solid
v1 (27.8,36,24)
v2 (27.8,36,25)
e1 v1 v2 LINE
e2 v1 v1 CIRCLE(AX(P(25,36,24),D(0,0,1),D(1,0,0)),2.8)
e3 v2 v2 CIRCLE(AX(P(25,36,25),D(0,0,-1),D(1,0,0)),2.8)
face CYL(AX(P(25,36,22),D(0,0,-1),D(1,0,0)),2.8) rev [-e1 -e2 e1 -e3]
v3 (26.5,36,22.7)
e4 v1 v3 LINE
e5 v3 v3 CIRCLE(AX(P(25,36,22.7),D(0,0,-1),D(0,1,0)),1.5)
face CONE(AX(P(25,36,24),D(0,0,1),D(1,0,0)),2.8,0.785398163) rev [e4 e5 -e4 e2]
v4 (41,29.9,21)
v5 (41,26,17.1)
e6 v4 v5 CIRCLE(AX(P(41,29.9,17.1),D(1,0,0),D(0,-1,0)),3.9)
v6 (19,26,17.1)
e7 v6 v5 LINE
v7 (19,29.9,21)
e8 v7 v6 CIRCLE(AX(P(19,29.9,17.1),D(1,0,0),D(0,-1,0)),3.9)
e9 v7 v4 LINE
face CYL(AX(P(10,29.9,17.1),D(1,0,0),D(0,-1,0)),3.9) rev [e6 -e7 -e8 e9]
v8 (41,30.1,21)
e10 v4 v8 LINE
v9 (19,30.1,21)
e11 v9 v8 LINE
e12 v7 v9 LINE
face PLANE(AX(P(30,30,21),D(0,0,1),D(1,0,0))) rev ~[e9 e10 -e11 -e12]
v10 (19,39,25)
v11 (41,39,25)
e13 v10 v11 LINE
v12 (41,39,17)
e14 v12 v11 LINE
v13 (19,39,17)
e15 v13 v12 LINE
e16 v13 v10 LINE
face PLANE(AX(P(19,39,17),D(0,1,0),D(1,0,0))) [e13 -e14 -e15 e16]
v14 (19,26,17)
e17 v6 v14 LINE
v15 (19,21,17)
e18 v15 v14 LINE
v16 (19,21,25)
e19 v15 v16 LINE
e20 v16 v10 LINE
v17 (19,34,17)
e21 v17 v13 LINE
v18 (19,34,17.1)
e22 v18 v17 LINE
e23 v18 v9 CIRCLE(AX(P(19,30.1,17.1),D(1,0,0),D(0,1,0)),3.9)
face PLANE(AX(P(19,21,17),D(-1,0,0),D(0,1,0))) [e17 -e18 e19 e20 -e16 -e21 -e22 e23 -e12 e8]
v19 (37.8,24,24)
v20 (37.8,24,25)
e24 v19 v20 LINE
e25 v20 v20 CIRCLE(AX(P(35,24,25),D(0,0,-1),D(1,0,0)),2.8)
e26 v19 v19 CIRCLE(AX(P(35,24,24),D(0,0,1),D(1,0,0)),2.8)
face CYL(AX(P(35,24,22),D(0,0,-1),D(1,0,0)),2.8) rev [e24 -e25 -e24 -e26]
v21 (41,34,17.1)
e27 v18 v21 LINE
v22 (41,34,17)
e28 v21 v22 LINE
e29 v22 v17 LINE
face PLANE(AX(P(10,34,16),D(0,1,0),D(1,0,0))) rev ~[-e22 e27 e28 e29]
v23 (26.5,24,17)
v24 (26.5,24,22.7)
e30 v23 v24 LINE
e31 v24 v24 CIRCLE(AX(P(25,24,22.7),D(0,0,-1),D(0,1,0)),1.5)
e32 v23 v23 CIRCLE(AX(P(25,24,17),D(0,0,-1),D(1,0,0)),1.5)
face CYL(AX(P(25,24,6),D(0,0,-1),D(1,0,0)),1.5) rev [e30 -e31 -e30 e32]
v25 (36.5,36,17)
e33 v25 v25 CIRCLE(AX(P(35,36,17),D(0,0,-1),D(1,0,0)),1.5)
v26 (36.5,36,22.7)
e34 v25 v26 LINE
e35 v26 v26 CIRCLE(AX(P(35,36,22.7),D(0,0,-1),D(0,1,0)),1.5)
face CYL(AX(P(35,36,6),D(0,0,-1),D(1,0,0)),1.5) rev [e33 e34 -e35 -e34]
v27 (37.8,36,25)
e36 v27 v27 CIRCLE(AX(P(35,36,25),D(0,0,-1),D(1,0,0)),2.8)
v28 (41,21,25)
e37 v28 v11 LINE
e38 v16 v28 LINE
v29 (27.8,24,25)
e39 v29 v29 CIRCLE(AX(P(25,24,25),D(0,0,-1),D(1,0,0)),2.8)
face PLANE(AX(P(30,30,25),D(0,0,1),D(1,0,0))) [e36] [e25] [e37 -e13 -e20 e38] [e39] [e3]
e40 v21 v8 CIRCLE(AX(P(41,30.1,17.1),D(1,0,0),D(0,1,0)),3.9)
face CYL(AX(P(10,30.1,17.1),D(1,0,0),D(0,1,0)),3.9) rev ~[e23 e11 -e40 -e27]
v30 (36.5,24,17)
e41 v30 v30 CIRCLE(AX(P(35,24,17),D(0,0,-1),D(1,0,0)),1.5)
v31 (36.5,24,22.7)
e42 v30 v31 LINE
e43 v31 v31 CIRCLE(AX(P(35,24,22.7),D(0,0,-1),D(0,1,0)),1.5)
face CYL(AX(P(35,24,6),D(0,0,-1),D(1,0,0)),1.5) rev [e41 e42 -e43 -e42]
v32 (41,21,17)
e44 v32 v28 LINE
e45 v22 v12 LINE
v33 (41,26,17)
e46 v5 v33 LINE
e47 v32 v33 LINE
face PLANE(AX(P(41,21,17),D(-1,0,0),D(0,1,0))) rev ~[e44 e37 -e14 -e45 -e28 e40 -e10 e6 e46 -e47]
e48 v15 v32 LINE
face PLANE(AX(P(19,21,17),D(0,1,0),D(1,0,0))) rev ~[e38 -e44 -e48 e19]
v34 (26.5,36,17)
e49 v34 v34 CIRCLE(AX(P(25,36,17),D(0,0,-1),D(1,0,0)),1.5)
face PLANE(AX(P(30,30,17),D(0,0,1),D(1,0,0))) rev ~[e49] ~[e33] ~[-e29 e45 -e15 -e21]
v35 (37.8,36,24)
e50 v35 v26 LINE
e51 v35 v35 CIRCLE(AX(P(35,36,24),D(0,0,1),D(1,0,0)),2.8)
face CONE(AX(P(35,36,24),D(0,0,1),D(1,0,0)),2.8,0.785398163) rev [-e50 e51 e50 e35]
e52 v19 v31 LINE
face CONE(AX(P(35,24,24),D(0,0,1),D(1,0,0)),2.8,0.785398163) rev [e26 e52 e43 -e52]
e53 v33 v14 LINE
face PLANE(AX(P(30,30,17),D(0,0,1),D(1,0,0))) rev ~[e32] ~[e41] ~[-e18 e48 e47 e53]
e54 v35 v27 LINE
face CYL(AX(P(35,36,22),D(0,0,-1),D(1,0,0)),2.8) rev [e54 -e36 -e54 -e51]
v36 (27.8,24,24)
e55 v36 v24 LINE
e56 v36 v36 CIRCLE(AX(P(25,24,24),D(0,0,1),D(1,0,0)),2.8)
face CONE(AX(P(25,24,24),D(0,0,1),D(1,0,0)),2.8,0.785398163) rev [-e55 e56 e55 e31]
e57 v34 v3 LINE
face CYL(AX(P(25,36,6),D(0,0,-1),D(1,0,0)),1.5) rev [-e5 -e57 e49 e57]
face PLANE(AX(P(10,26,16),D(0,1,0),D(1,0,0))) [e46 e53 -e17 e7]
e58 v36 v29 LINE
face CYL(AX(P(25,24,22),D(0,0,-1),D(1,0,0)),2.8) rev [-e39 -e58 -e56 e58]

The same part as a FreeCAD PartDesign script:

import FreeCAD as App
import Part
import Sketcher

V = App.Vector
Q = App.Units.Quantity


def edges_at(feature, points):
    """Names of the edges that pass closest to the given points."""
    edges = feature.Shape.Edges
    near = lambda p: min(range(len(edges)), key=lambda i: edges[i].distToShape(Part.Vertex(*p))[0])
    return sorted({f"Edge{near(p) + 1}" for p in points})

doc = App.newDocument("Part")
params = doc.addObject("Spreadsheet::Sheet", "Params")
for row, (alias, value) in enumerate([
    ("sketch1_diameter", "3 mm"),
    ("pad1_length", "25 mm"),
    ("sketch2_diameter", "5.6 mm"),
    ("pad2_length", "5 mm"),
    ("chamfer_size", "2 mm"),
    ("sketch3_diameter", "3 mm"),
    ("pad3_length", "25 mm"),
    ("sketch4_diameter", "3 mm"),
    ("pad4_length", "25 mm"),
    ("sketch5_diameter", "5.6 mm"),
    ("pad5_length", "5 mm"),
    ("chamfer2_size", "2 mm"),
    ("sketch6_diameter", "3 mm"),
    ("pad6_length", "25 mm"),
    ("sketch7_diameter", "5.6 mm"),
    ("pad7_length", "5 mm"),
    ("chamfer3_size", "2 mm"),
    ("sketch8_width", "40 mm"),
    ("sketch8_height", "8 mm"),
    ("pad8_length", "5 mm"),
    ("fillet_radius", "3.9 mm"),
    ("sketch9_diameter", "5.6 mm"),
    ("pad9_length", "5 mm"),
    ("chamfer4_size", "2 mm"),
    ("sketch10_width", "22 mm"),
    ("sketch10_height", "18 mm"),
    ("pad10_length", "8 mm"),
], start=1):
    params.set(f"A{row}", alias)
    params.set(f"B{row}", "=" + value)
    params.setAlias(f"B{row}", alias)

body = doc.addObject("PartDesign::Body", "Body")

# Sketch on XY plane
sketch1 = body.newObject("Sketcher::SketchObject", "Sketch")
sketch1.AttachmentSupport = (doc.getObject("XY_Plane"), [""])
sketch1.MapMode = "FlatFace"
sketch1.AttachmentOffset = App.Placement(V(0, 0, 2), App.Rotation())
sketch1.addGeometry(Part.Circle(V(25, 24, 0), V(0, 0, 1), 1.5), False)
sketch1.addConstraint(Sketcher.Constraint("Diameter", 0, Q("3 mm")))
sketch1.addConstraint(Sketcher.Constraint("DistanceX", -1, 1, 0, 3, Q("25 mm")))
sketch1.addConstraint(Sketcher.Constraint("DistanceY", -1, 1, 0, 3, Q("24 mm")))
sketch1.setExpression("Constraints[0]", "Params.sketch1_diameter")
pad1 = body.newObject("PartDesign::Pad", "Pad")
pad1.Profile = sketch1
pad1.setExpression("Length", "Params.pad1_length")
body2 = doc.addObject("PartDesign::Body", "Body001")

# Sketch on XY plane
sketch2 = body2.newObject("Sketcher::SketchObject", "Sketch001")
sketch2.AttachmentSupport = (doc.getObject("XY_Plane001"), [""])
sketch2.MapMode = "FlatFace"
sketch2.AttachmentOffset = App.Placement(V(0, 0, 18), App.Rotation())
sketch2.addGeometry(Part.Circle(V(25, 36, 0), V(0, 0, 1), 2.8), False)
sketch2.addConstraint(Sketcher.Constraint("Diameter", 0, Q("5.6 mm")))
sketch2.addConstraint(Sketcher.Constraint("DistanceX", -1, 1, 0, 3, Q("25 mm")))
sketch2.addConstraint(Sketcher.Constraint("DistanceY", -1, 1, 0, 3, Q("36 mm")))
sketch2.setExpression("Constraints[0]", "Params.sketch2_diameter")
pad2 = body2.newObject("PartDesign::Pad", "Pad001")
pad2.Profile = sketch2
pad2.setExpression("Length", "Params.pad2_length")
doc.recompute()

chamfer = body2.newObject("PartDesign::Chamfer", "Chamfer")
chamfer.Base = (pad2, edges_at(pad2, [(22.2, 36, 18)]))
chamfer.setExpression("Size", "Params.chamfer_size")
body3 = doc.addObject("PartDesign::Body", "Body002")

# Sketch on XY plane
sketch3 = body3.newObject("Sketcher::SketchObject", "Sketch002")
sketch3.AttachmentSupport = (doc.getObject("XY_Plane002"), [""])
sketch3.MapMode = "FlatFace"
sketch3.AttachmentOffset = App.Placement(V(0, 0, 2), App.Rotation())
sketch3.addGeometry(Part.Circle(V(25, 36, 0), V(0, 0, 1), 1.5), False)
sketch3.addConstraint(Sketcher.Constraint("Diameter", 0, Q("3 mm")))
sketch3.addConstraint(Sketcher.Constraint("DistanceX", -1, 1, 0, 3, Q("25 mm")))
sketch3.addConstraint(Sketcher.Constraint("DistanceY", -1, 1, 0, 3, Q("36 mm")))
sketch3.setExpression("Constraints[0]", "Params.sketch3_diameter")
pad3 = body3.newObject("PartDesign::Pad", "Pad002")
pad3.Profile = sketch3
pad3.setExpression("Length", "Params.pad3_length")
body4 = doc.addObject("PartDesign::Body", "Body003")

# Sketch on XY plane
sketch4 = body4.newObject("Sketcher::SketchObject", "Sketch003")
sketch4.AttachmentSupport = (doc.getObject("XY_Plane003"), [""])
sketch4.MapMode = "FlatFace"
sketch4.AttachmentOffset = App.Placement(V(0, 0, 2), App.Rotation())
sketch4.addGeometry(Part.Circle(V(35, 36, 0), V(0, 0, 1), 1.5), False)
sketch4.addConstraint(Sketcher.Constraint("Diameter", 0, Q("3 mm")))
sketch4.addConstraint(Sketcher.Constraint("DistanceX", -1, 1, 0, 3, Q("35 mm")))
sketch4.addConstraint(Sketcher.Constraint("DistanceY", -1, 1, 0, 3, Q("36 mm")))
sketch4.setExpression("Constraints[0]", "Params.sketch4_diameter")
pad4 = body4.newObject("PartDesign::Pad", "Pad003")
pad4.Profile = sketch4
pad4.setExpression("Length", "Params.pad4_length")
body5 = doc.addObject("PartDesign::Body", "Body004")

# Sketch on XY plane
sketch5 = body5.newObject("Sketcher::SketchObject", "Sketch004")
sketch5.AttachmentSupport = (doc.getObject("XY_Plane004"), [""])
sketch5.MapMode = "FlatFace"
sketch5.AttachmentOffset = App.Placement(V(0, 0, 18), App.Rotation())
sketch5.addGeometry(Part.Circle(V(35, 36, 0), V(0, 0, 1), 2.8), False)
sketch5.addConstraint(Sketcher.Constraint("Diameter", 0, Q("5.6 mm")))
sketch5.addConstraint(Sketcher.Constraint("DistanceX", -1, 1, 0, 3, Q("35 mm")))
sketch5.addConstraint(Sketcher.Constraint("DistanceY", -1, 1, 0, 3, Q("36 mm")))
sketch5.setExpression("Constraints[0]", "Params.sketch5_diameter")
pad5 = body5.newObject("PartDesign::Pad", "Pad004")
pad5.Profile = sketch5
pad5.setExpression("Length", "Params.pad5_length")
doc.recompute()

chamfer2 = body5.newObject("PartDesign::Chamfer", "Chamfer001")
chamfer2.Base = (pad5, edges_at(pad5, [(32.2, 36, 18)]))
chamfer2.setExpression("Size", "Params.chamfer2_size")
body6 = doc.addObject("PartDesign::Body", "Body005")

# Sketch on XY plane
sketch6 = body6.newObject("Sketcher::SketchObject", "Sketch005")
sketch6.AttachmentSupport = (doc.getObject("XY_Plane005"), [""])
sketch6.MapMode = "FlatFace"
sketch6.AttachmentOffset = App.Placement(V(0, 0, 2), App.Rotation())
sketch6.addGeometry(Part.Circle(V(35, 24, 0), V(0, 0, 1), 1.5), False)
sketch6.addConstraint(Sketcher.Constraint("Diameter", 0, Q("3 mm")))
sketch6.addConstraint(Sketcher.Constraint("DistanceX", -1, 1, 0, 3, Q("35 mm")))
sketch6.addConstraint(Sketcher.Constraint("DistanceY", -1, 1, 0, 3, Q("24 mm")))
sketch6.setExpression("Constraints[0]", "Params.sketch6_diameter")
pad6 = body6.newObject("PartDesign::Pad", "Pad005")
pad6.Profile = sketch6
pad6.setExpression("Length", "Params.pad6_length")
body7 = doc.addObject("PartDesign::Body", "Body006")

# Sketch on XY plane
sketch7 = body7.newObject("Sketcher::SketchObject", "Sketch006")
sketch7.AttachmentSupport = (doc.getObject("XY_Plane006"), [""])
sketch7.MapMode = "FlatFace"
sketch7.AttachmentOffset = App.Placement(V(0, 0, 18), App.Rotation())
sketch7.addGeometry(Part.Circle(V(35, 24, 0), V(0, 0, 1), 2.8), False)
sketch7.addConstraint(Sketcher.Constraint("Diameter", 0, Q("5.6 mm")))
sketch7.addConstraint(Sketcher.Constraint("DistanceX", -1, 1, 0, 3, Q("35 mm")))
sketch7.addConstraint(Sketcher.Constraint("DistanceY", -1, 1, 0, 3, Q("24 mm")))
sketch7.setExpression("Constraints[0]", "Params.sketch7_diameter")
pad7 = body7.newObject("PartDesign::Pad", "Pad006")
pad7.Profile = sketch7
pad7.setExpression("Length", "Params.pad7_length")
doc.recompute()

chamfer3 = body7.newObject("PartDesign::Chamfer", "Chamfer002")
chamfer3.Base = (pad7, edges_at(pad7, [(32.2, 24, 18)]))
chamfer3.setExpression("Size", "Params.chamfer3_size")
body8 = doc.addObject("PartDesign::Body", "Body007")

# Sketch on XY plane
sketch8 = body8.newObject("Sketcher::SketchObject", "Sketch007")
sketch8.AttachmentSupport = (doc.getObject("XY_Plane007"), [""])
sketch8.MapMode = "FlatFace"
sketch8.AttachmentOffset = App.Placement(V(0, 0, 12), App.Rotation())
sketch8.addGeometry(Part.LineSegment(V(10, 34, 0), V(10, 26, 0)), False)
sketch8.addGeometry(Part.LineSegment(V(10, 26, 0), V(50, 26, 0)), False)
sketch8.addGeometry(Part.LineSegment(V(50, 26, 0), V(50, 34, 0)), False)
sketch8.addGeometry(Part.LineSegment(V(50, 34, 0), V(10, 34, 0)), False)
sketch8.addConstraint(Sketcher.Constraint("Coincident", 0, 2, 1, 1))
sketch8.addConstraint(Sketcher.Constraint("Coincident", 1, 2, 2, 1))
sketch8.addConstraint(Sketcher.Constraint("Coincident", 2, 2, 3, 1))
sketch8.addConstraint(Sketcher.Constraint("Coincident", 3, 2, 0, 1))
sketch8.addConstraint(Sketcher.Constraint("Vertical", 0))
sketch8.addConstraint(Sketcher.Constraint("Horizontal", 1))
sketch8.addConstraint(Sketcher.Constraint("Vertical", 2))
sketch8.addConstraint(Sketcher.Constraint("Horizontal", 3))
sketch8.addConstraint(Sketcher.Constraint("DistanceX", 1, 1, 1, 2, Q("40 mm")))
sketch8.addConstraint(Sketcher.Constraint("DistanceY", 0, 2, 0, 1, Q("8 mm")))
sketch8.addConstraint(Sketcher.Constraint("DistanceX", -1, 1, 0, 2, Q("10 mm")))
sketch8.addConstraint(Sketcher.Constraint("DistanceY", -1, 1, 0, 2, Q("26 mm")))
sketch8.setExpression("Constraints[8]", "Params.sketch8_width")
sketch8.setExpression("Constraints[9]", "Params.sketch8_height")
pad8 = body8.newObject("PartDesign::Pad", "Pad007")
pad8.Profile = sketch8
pad8.setExpression("Length", "Params.pad8_length")
doc.recompute()

fillet = body8.newObject("PartDesign::Fillet", "Fillet")
fillet.Base = (pad8, edges_at(pad8, [(30, 26, 17), (30, 34, 17)]))
fillet.setExpression("Radius", "Params.fillet_radius")
body9 = doc.addObject("PartDesign::Body", "Body008")
body9.AllowCompound = True

# Sketch on XY plane
sketch9 = body9.newObject("Sketcher::SketchObject", "Sketch008")
sketch9.AttachmentSupport = (doc.getObject("XY_Plane008"), [""])
sketch9.MapMode = "FlatFace"
sketch9.AttachmentOffset = App.Placement(V(0, 0, 18), App.Rotation())
sketch9.addGeometry(Part.Circle(V(25, 24, 0), V(0, 0, 1), 2.8), False)
sketch9.addConstraint(Sketcher.Constraint("Diameter", 0, Q("5.6 mm")))
sketch9.addConstraint(Sketcher.Constraint("DistanceX", -1, 1, 0, 3, Q("25 mm")))
sketch9.addConstraint(Sketcher.Constraint("DistanceY", -1, 1, 0, 3, Q("24 mm")))
sketch9.setExpression("Constraints[0]", "Params.sketch9_diameter")
pad9 = body9.newObject("PartDesign::Pad", "Pad008")
pad9.Profile = sketch9
pad9.setExpression("Length", "Params.pad9_length")
doc.recompute()

chamfer4 = body9.newObject("PartDesign::Chamfer", "Chamfer003")
chamfer4.Base = (pad9, edges_at(pad9, [(22.2, 24, 18)]))
chamfer4.setExpression("Size", "Params.chamfer4_size")
doc.recompute()

boolean = body9.newObject("PartDesign::Boolean", "Boolean")
boolean.Type = "Fuse"
boolean.addObjects([body])
doc.recompute()

boolean2 = body9.newObject("PartDesign::Boolean", "Boolean001")
boolean2.Type = "Fuse"
boolean2.addObjects([body2])
doc.recompute()

boolean3 = body9.newObject("PartDesign::Boolean", "Boolean002")
boolean3.Type = "Fuse"
boolean3.addObjects([body3])
doc.recompute()

boolean4 = body9.newObject("PartDesign::Boolean", "Boolean003")
boolean4.Type = "Fuse"
boolean4.addObjects([body4])
doc.recompute()

boolean5 = body9.newObject("PartDesign::Boolean", "Boolean004")
boolean5.Type = "Fuse"
boolean5.addObjects([body5])
doc.recompute()

boolean6 = body9.newObject("PartDesign::Boolean", "Boolean005")
boolean6.Type = "Fuse"
boolean6.addObjects([body6])
doc.recompute()

boolean7 = body9.newObject("PartDesign::Boolean", "Boolean006")
boolean7.Type = "Fuse"
boolean7.addObjects([body7])
doc.recompute()

boolean8 = body9.newObject("PartDesign::Boolean", "Boolean007")
boolean8.Type = "Fuse"
boolean8.addObjects([body8])
body10 = doc.addObject("PartDesign::Body", "Body009")

# Sketch on XY plane
sketch10 = body10.newObject("Sketcher::SketchObject", "Sketch009")
sketch10.AttachmentSupport = (doc.getObject("XY_Plane009"), [""])
sketch10.MapMode = "FlatFace"
sketch10.AttachmentOffset = App.Placement(V(0, 0, 13), App.Rotation())
sketch10.addGeometry(Part.LineSegment(V(19, 39, 0), V(19, 21, 0)), False)
sketch10.addGeometry(Part.LineSegment(V(19, 21, 0), V(41, 21, 0)), False)
sketch10.addGeometry(Part.LineSegment(V(41, 21, 0), V(41, 39, 0)), False)
sketch10.addGeometry(Part.LineSegment(V(41, 39, 0), V(19, 39, 0)), False)
sketch10.addConstraint(Sketcher.Constraint("Coincident", 0, 2, 1, 1))
sketch10.addConstraint(Sketcher.Constraint("Coincident", 1, 2, 2, 1))
sketch10.addConstraint(Sketcher.Constraint("Coincident", 2, 2, 3, 1))
sketch10.addConstraint(Sketcher.Constraint("Coincident", 3, 2, 0, 1))
sketch10.addConstraint(Sketcher.Constraint("Vertical", 0))
sketch10.addConstraint(Sketcher.Constraint("Horizontal", 1))
sketch10.addConstraint(Sketcher.Constraint("Vertical", 2))
sketch10.addConstraint(Sketcher.Constraint("Horizontal", 3))
sketch10.addConstraint(Sketcher.Constraint("DistanceX", 1, 1, 1, 2, Q("22 mm")))
sketch10.addConstraint(Sketcher.Constraint("DistanceY", 0, 2, 0, 1, Q("18 mm")))
sketch10.addConstraint(Sketcher.Constraint("DistanceX", -1, 1, 0, 2, Q("19 mm")))
sketch10.addConstraint(Sketcher.Constraint("DistanceY", -1, 1, 0, 2, Q("21 mm")))
sketch10.setExpression("Constraints[8]", "Params.sketch10_width")
sketch10.setExpression("Constraints[9]", "Params.sketch10_height")
pad10 = body10.newObject("PartDesign::Pad", "Pad009")
pad10.Profile = sketch10
pad10.setExpression("Length", "Params.pad10_length")
doc.recompute()

boolean9 = body10.newObject("PartDesign::Boolean", "Boolean008")
boolean9.Type = "Cut"
boolean9.addObjects([body9])
body11 = doc.addObject("PartDesign::Body", "Body010")
doc.recompute()

body10.Placement = App.Placement(V(0, 0, 4), App.Rotation(V(0, 0, 1), 0))
boolean10 = body11.newObject("PartDesign::Boolean", "Boolean009")
boolean10.Type = "Fuse"
boolean10.addObjects([body10])

doc.recompute()
